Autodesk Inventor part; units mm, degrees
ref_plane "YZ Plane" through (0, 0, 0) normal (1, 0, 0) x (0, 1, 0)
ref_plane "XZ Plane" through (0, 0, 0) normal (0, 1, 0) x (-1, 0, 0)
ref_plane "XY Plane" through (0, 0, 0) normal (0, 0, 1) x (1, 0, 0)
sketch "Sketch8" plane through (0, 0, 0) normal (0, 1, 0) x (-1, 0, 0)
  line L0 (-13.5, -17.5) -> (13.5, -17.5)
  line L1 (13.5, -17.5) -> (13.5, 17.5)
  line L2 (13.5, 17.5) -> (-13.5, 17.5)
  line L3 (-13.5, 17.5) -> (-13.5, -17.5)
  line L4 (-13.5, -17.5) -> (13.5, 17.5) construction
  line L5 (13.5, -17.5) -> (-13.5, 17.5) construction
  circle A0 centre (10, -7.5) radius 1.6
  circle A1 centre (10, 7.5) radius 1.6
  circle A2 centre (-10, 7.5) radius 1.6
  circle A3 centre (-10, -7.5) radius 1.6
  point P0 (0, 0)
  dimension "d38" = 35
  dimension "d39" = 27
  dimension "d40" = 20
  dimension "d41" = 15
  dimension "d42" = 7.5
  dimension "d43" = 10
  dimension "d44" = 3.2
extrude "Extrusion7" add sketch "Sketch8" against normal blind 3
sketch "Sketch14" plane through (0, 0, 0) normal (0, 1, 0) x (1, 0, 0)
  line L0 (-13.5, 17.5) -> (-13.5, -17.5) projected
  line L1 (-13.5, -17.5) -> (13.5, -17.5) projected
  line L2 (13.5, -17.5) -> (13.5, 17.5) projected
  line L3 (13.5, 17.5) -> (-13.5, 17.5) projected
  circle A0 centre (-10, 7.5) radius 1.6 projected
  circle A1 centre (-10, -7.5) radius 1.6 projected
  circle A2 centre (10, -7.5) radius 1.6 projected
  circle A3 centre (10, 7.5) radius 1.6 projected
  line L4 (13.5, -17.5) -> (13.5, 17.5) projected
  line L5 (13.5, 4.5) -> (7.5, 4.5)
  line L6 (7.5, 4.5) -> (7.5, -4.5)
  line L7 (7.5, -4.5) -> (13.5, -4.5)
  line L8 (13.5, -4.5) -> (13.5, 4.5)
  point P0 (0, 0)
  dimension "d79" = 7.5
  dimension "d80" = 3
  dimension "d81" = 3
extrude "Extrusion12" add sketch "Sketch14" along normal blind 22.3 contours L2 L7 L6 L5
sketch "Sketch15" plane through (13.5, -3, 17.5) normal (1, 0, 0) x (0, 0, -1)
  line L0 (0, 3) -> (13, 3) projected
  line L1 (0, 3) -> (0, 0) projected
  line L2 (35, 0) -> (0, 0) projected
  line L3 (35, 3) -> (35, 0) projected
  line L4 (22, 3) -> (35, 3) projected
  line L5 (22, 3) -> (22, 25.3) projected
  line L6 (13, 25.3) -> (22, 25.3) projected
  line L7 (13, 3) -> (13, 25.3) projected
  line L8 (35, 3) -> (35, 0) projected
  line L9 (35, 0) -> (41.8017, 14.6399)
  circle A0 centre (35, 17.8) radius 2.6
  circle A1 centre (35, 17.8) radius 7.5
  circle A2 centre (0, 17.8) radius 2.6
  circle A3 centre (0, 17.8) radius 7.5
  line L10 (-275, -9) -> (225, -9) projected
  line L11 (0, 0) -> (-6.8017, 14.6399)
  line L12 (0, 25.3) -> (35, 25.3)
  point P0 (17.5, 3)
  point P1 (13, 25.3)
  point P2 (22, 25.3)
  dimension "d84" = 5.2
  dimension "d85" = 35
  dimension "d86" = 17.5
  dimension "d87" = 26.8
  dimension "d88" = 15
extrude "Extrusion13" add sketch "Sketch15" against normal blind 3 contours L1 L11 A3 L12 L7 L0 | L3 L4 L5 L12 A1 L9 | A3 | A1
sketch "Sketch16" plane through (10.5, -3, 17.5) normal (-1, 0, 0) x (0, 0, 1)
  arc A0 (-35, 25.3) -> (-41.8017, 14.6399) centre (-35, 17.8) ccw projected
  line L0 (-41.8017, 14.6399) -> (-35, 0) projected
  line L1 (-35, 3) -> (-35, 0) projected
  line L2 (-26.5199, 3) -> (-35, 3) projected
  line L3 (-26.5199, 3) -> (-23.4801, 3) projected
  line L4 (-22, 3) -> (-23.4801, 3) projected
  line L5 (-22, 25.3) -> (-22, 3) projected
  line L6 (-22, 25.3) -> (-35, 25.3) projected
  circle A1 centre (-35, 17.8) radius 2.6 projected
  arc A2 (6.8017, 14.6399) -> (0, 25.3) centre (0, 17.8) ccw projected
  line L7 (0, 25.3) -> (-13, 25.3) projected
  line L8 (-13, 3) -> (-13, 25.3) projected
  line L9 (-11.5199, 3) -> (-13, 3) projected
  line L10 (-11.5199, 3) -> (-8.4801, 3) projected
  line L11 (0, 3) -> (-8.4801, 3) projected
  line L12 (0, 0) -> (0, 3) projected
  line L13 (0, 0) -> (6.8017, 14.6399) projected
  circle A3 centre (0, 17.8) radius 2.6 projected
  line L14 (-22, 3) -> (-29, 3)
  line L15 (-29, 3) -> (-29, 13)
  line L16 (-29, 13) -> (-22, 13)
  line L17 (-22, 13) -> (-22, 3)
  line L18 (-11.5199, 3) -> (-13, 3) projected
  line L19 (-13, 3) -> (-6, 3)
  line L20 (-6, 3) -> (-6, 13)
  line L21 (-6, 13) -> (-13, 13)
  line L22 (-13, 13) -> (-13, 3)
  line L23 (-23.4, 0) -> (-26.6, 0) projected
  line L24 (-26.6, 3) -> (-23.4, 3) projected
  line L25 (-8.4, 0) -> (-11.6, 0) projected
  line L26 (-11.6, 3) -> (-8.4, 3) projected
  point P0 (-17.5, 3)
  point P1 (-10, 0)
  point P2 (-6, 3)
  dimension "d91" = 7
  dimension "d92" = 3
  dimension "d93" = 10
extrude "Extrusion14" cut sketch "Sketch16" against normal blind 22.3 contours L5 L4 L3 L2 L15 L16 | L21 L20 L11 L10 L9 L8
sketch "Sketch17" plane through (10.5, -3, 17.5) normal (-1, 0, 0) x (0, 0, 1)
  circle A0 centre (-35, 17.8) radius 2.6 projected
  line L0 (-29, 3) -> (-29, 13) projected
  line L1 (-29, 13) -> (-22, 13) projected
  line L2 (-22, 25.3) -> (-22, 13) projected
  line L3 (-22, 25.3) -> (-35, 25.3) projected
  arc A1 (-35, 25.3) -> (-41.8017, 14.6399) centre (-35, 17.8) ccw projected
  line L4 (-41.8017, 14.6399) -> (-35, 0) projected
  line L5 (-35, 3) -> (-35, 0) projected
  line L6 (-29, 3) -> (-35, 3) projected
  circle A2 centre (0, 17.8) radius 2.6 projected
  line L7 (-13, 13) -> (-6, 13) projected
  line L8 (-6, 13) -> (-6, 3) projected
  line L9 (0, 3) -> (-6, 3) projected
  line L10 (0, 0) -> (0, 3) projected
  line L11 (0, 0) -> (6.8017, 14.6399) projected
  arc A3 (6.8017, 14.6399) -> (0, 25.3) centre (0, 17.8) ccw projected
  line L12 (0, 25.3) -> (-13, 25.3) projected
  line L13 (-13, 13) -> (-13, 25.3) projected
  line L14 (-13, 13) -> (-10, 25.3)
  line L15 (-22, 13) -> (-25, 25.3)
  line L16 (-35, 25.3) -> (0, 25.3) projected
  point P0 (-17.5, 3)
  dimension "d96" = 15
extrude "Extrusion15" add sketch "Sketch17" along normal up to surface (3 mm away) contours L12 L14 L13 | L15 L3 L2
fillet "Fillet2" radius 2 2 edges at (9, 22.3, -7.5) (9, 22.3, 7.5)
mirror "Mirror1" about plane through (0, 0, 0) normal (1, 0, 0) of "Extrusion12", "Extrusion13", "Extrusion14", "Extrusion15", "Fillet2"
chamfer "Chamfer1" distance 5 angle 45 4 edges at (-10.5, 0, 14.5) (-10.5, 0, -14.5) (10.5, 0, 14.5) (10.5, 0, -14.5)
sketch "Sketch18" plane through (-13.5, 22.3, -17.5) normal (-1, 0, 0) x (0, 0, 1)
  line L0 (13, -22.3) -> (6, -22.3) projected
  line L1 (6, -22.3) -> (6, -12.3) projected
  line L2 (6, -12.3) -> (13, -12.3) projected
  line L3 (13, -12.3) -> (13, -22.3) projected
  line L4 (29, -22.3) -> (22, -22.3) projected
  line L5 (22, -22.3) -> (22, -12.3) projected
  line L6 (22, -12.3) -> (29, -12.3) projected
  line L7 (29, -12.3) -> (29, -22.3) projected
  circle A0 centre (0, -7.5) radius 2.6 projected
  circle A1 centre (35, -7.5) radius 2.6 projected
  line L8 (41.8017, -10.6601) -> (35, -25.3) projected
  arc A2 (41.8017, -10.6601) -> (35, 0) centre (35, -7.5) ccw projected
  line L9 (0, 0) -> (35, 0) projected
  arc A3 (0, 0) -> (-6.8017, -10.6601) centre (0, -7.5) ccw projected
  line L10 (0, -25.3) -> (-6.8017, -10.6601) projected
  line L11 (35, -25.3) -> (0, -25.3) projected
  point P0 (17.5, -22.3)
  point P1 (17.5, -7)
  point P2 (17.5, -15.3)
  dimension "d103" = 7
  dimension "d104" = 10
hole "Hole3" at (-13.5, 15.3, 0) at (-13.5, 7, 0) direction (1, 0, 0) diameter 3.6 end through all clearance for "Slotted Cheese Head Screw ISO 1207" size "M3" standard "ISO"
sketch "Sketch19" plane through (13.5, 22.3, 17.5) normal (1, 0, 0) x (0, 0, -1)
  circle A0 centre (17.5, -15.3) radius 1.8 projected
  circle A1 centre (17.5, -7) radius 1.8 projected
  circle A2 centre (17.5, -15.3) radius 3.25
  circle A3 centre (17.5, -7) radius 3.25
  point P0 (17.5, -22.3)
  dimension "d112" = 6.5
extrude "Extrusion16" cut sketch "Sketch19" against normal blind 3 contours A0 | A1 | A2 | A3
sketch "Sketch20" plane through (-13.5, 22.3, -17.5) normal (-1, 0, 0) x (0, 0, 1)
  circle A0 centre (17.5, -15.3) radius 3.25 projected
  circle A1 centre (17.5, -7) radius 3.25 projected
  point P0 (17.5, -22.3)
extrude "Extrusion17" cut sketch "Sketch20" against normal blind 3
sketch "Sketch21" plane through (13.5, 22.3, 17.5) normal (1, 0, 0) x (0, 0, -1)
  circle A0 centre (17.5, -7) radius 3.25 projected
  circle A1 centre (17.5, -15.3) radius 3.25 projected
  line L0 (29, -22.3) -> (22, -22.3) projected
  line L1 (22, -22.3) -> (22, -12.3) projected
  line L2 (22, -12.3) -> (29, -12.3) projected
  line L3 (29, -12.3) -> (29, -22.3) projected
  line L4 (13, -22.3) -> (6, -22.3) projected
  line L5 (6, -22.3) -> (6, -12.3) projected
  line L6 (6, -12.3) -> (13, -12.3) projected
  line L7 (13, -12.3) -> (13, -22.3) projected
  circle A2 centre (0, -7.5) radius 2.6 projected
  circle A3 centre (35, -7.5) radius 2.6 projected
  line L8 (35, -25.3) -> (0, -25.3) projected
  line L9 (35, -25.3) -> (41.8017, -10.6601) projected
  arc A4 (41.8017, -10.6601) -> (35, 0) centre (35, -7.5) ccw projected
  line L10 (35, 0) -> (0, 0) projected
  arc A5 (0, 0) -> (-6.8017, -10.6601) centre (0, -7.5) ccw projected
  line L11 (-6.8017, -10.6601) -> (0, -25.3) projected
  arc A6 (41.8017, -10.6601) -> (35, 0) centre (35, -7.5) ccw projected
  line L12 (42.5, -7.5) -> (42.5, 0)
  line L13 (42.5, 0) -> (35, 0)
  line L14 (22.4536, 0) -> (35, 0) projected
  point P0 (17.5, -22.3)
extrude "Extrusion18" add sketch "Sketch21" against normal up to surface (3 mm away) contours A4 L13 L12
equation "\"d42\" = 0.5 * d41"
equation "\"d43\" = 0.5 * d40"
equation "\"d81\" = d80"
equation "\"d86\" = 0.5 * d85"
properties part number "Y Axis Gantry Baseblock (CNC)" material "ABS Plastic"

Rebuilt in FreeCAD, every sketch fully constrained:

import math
import FreeCAD as App
import Part
import Sketcher


def edges_at(feature, points):
    """Names of the edges that pass closest to the given points."""
    edges = feature.Shape.Edges
    near = lambda p: min(range(len(edges)), key=lambda i: edges[i].distToShape(Part.Vertex(*p))[0])
    return sorted({f"Edge{near(p) + 1}" for p in points})


def add_polygon(sketch, points):
    """Adds a closed chain of lines whose ends are joined by coincident constraints."""
    first, n = sketch.GeometryCount, len(points)
    for a, b in zip(points, points[1:] + points[:1]):
        sketch.addGeometry(Part.LineSegment(App.Vector(*a, 0), App.Vector(*b, 0)), False)
    for i in range(n):
        sketch.addConstraint(Sketcher.Constraint("Coincident", first + i, 2, first + (i + 1) % n, 1))

doc = App.newDocument("Part")
body = doc.addObject("PartDesign::Body", "Body")

sketch1 = doc.addObject("Sketcher::SketchObject", "Sketch")
body.addObject(sketch1)
sketch1.AttachmentSupport = (doc.XZ_Plane, [""])
sketch1.MapMode = "FlatFace"
add_polygon(sketch1, [(13.5, 17.5), (13.5, -17.5), (-13.5, -17.5), (-13.5, 17.5)])
sketch1.addGeometry(Part.Circle(App.Vector(10, -7.5, 0), App.Vector(0, 0, 1), 1.6), False)
sketch1.addGeometry(Part.Circle(App.Vector(-10, -7.5, 0), App.Vector(0, 0, 1), 1.6), False)
sketch1.addGeometry(Part.Circle(App.Vector(10, 7.5, 0), App.Vector(0, 0, 1), 1.6), False)
sketch1.addGeometry(Part.Circle(App.Vector(-10, 7.5, 0), App.Vector(0, 0, 1), 1.6), False)
sketch1.addConstraint([
    Sketcher.Constraint("Vertical", 0),
    Sketcher.Constraint("Horizontal", 1),
    Sketcher.Constraint("Vertical", 2),
    Sketcher.Constraint("Horizontal", 3),
    Sketcher.Constraint("Equal", 4, 5),
    Sketcher.Constraint("Equal", 5, 6),
    Sketcher.Constraint("Equal", 6, 7),
    Sketcher.Constraint("Symmetric", 5, 3, 6, 3, -1, 1),
    Sketcher.Constraint("Symmetric", 4, 3, 7, 3, -1, 1),
    Sketcher.Constraint("Symmetric", 0, 2, 2, 2, -1, 1),
    Sketcher.Constraint("Symmetric", 4, 3, 5, 3, -2),
    Sketcher.Constraint("Diameter", 4, 3.2),
    Sketcher.Constraint("DistanceX", 1, 2, 1, 1, 27.0),
    Sketcher.Constraint("DistanceY", 0, 2, 0, 1, 35.0),
    Sketcher.Constraint("DistanceX", -1, 1, 4, 3, 10.0),
    Sketcher.Constraint("DistanceY", 4, 3, 6, 3, 15.0),
])
pad1 = doc.addObject("PartDesign::Pad", "Pad")
body.addObject(pad1)
pad1.Profile = sketch1
pad1.Length = 3

sketch2 = doc.addObject("Sketcher::SketchObject", "Sketch001")
body.addObject(sketch2)
sketch2.AttachmentSupport = (doc.XZ_Plane, [""])
sketch2.MapMode = "FlatFace"
add_polygon(sketch2, [(14, 4), (14, -4), (8, -4), (8, 4)])
sketch2.addConstraint([
    Sketcher.Constraint("Vertical", 0),
    Sketcher.Constraint("Horizontal", 1),
    Sketcher.Constraint("Vertical", 2),
    Sketcher.Constraint("Horizontal", 3),
    Sketcher.Constraint("DistanceX", -1, 1, 1, 2, 7.5),
    Sketcher.Constraint("DistanceX", 1, 2, 1, 1, 6.0),
    Sketcher.Constraint("DistanceY", 0, 2, 0, 1, 9.0),
    Sketcher.Constraint("DistanceY", 0, 2, -1, 1, 4.5),
])
pad2 = doc.addObject("PartDesign::Pad", "Pad001")
body.addObject(pad2)
pad2.Profile = sketch2
pad2.Length = 22.3
pad2.Reversed = True

sketch3 = doc.addObject("Sketcher::SketchObject", "Sketch002")
body.addObject(sketch3)
sketch3.AttachmentSupport = (doc.YZ_Plane, [""])
sketch3.MapMode = "FlatFace"
sketch3.AttachmentOffset = App.Placement(App.Vector(0, 0, 13.5), App.Rotation())
sketch3.addGeometry([
    Part.LineSegment(App.Vector(-3, 17.5, 0), App.Vector(0, 17.5, 0)),
    Part.LineSegment(App.Vector(0, 17.5, 0), App.Vector(0, 4.5, 0)),
    Part.LineSegment(App.Vector(0, 4.5, 0), App.Vector(22.3, 4.5, 0)),
    Part.LineSegment(App.Vector(22.3, 4.5, 0), App.Vector(22.3, 17.5, 0)),
    Part.ArcOfCircle(Part.Circle(App.Vector(14.8, 17.5, 0), App.Vector(0, 0, 1), 7.5), math.radians(0), math.radians(115)),
    Part.LineSegment(App.Vector(11.6, 24.3, 0), App.Vector(-3, 17.5, 0)),
    Part.Circle(App.Vector(14.8, 17.5, 0), App.Vector(0, 0, 1), 2.6),
    Part.LineSegment(App.Vector(0, -17.5, 0), App.Vector(-3, -17.5, 0)),
    Part.LineSegment(App.Vector(-3, -17.5, 0), App.Vector(11.6, -24.3, 0)),
    Part.ArcOfCircle(Part.Circle(App.Vector(14.8, -17.5, 0), App.Vector(0, 0, 1), 7.5), math.radians(-115), math.radians(0)),
    Part.LineSegment(App.Vector(22.3, -17.5, 0), App.Vector(22.3, -4.5, 0)),
    Part.LineSegment(App.Vector(22.3, -4.5, 0), App.Vector(0, -4.5, 0)),
    Part.LineSegment(App.Vector(0, -4.5, 0), App.Vector(0, -17.5, 0)),
    Part.Circle(App.Vector(14.8, -17.5, 0), App.Vector(0, 0, 1), 2.6),
], False)
sketch3.addConstraint([
    Sketcher.Constraint("Coincident", 0, 2, 1, 1),
    Sketcher.Constraint("Coincident", 1, 2, 2, 1),
    Sketcher.Constraint("Coincident", 2, 2, 3, 1),
    Sketcher.Constraint("Tangent", 3, 2, 4, 1),
    Sketcher.Constraint("Tangent", 4, 2, 5, 1),
    Sketcher.Constraint("Coincident", 5, 2, 0, 1),
    Sketcher.Constraint("Coincident", 7, 2, 8, 1),
    Sketcher.Constraint("Tangent", 8, 2, 9, 1),
    Sketcher.Constraint("Tangent", 9, 2, 10, 1),
    Sketcher.Constraint("Coincident", 10, 2, 11, 1),
    Sketcher.Constraint("Coincident", 11, 2, 12, 1),
    Sketcher.Constraint("Coincident", 12, 2, 7, 1),
    Sketcher.Constraint("Horizontal", 0),
    Sketcher.Constraint("Vertical", 1),
    Sketcher.Constraint("Horizontal", 2),
    Sketcher.Constraint("Vertical", 3),
    Sketcher.Constraint("Horizontal", 7),
    Sketcher.Constraint("Vertical", 10),
    Sketcher.Constraint("Horizontal", 11),
    Sketcher.Constraint("Vertical", 12),
    Sketcher.Constraint("Coincident", 6, 3, 4, 3),
    Sketcher.Constraint("Coincident", 13, 3, 9, 3),
    Sketcher.Constraint("Equal", 4, 9),
    Sketcher.Constraint("Equal", 6, 13),
    Sketcher.Constraint("Symmetric", 1, 2, 11, 2, -1, 1),
    Sketcher.Constraint("Symmetric", 4, 3, 9, 3, -1),
    Sketcher.Constraint("Symmetric", 5, 2, 7, 2, -1),
    Sketcher.Constraint("PointOnObject", 0, 2, -2),
    Sketcher.Constraint("Horizontal", 6, 3, 0, 2),
    Sketcher.Constraint("Diameter", 6, 5.2),
    Sketcher.Constraint("Radius", 4, 7.5),
    Sketcher.Constraint("DistanceY", 9, 3, 4, 3, 35.0),
    Sketcher.Constraint("DistanceX", 0, 1, 0, 2, 3.0),
    Sketcher.Constraint("DistanceY", 1, 2, 1, 1, 13.0),
    Sketcher.Constraint("DistanceX", 2, 1, 2, 2, 22.3),
])
pad3 = doc.addObject("PartDesign::Pad", "Pad002")
body.addObject(pad3)
pad3.Profile = sketch3
pad3.Length = 3
pad3.Reversed = True

sketch4 = doc.addObject("Sketcher::SketchObject", "Sketch003")
body.addObject(sketch4)
sketch4.AttachmentSupport = (doc.YZ_Plane, [""])
sketch4.MapMode = "FlatFace"
sketch4.AttachmentOffset = App.Placement(App.Vector(0, 0, 10.5), App.Rotation())
add_polygon(sketch4, [(0, -4), (10, -4), (10, -12), (0, -12)])
add_polygon(sketch4, [(10, 12), (10, 4), (0, 4), (0, 12)])
sketch4.addConstraint([
    Sketcher.Constraint("Horizontal", 0),
    Sketcher.Constraint("Vertical", 1),
    Sketcher.Constraint("Horizontal", 2),
    Sketcher.Constraint("Vertical", 3),
    Sketcher.Constraint("Vertical", 4),
    Sketcher.Constraint("Horizontal", 5),
    Sketcher.Constraint("Vertical", 6),
    Sketcher.Constraint("Horizontal", 7),
    Sketcher.Constraint("Symmetric", 3, 2, 5, 2, -1, 1),
    Sketcher.Constraint("Symmetric", 2, 2, 6, 2, -1),
    Sketcher.Constraint("Vertical", 1, 2, 4, 2),
    Sketcher.Constraint("DistanceX", 0, 1, 0, 2, 10.0),
    Sketcher.Constraint("DistanceY", 1, 2, 1, 1, 7.0),
    Sketcher.Constraint("DistanceY", 0, 2, 4, 2, 9.0),
])
pocket1 = doc.addObject("PartDesign::Pocket", "Pocket")
body.addObject(pocket1)
pocket1.Profile = sketch4
pocket1.Length = 22.3
pocket1.Reversed = True

sketch5 = doc.addObject("Sketcher::SketchObject", "Sketch004")
body.addObject(sketch5)
sketch5.AttachmentSupport = (doc.YZ_Plane, [""])
sketch5.MapMode = "FlatFace"
sketch5.AttachmentOffset = App.Placement(App.Vector(0, 0, 10.5), App.Rotation())
add_polygon(sketch5, [(22.3, 7.5), (22.3, 4.5), (10, 4.5)])
add_polygon(sketch5, [(22.3, -7.5), (10, -4.5), (22.3, -4.5)])
sketch5.addConstraint([
    Sketcher.Constraint("Vertical", 0),
    Sketcher.Constraint("Horizontal", 1),
    Sketcher.Constraint("Horizontal", 4),
    Sketcher.Constraint("Vertical", 5),
    Sketcher.Constraint("Symmetric", 1, 2, 3, 2, -1),
    Sketcher.Constraint("Symmetric", 2, 2, 5, 2, -1),
    Sketcher.Constraint("DistanceY", 5, 2, 2, 2, 15.0),
    Sketcher.Constraint("DistanceY", 0, 2, 0, 1, 3.0),
    Sketcher.Constraint("DistanceX", 1, 2, 1, 1, 12.3),
    Sketcher.Constraint("DistanceX", -1, 1, 1, 2, 10.0),
])
pad4 = doc.addObject("PartDesign::Pad", "Pad003")
body.addObject(pad4)
pad4.Profile = sketch5
pad4.Length = 3
pad4.Reversed = True
doc.recompute()

fillet = doc.addObject("PartDesign::Fillet", "Fillet")
body.addObject(fillet)
fillet.Base = (pad4, edges_at(pad4, [(9, 22.3, -7.5), (9, 22.3, 7.5)]))
fillet.Radius = 2
doc.recompute()

mirrored = doc.addObject("PartDesign::Mirrored", "Mirrored")
body.addObject(mirrored)
mirrored.Originals = [pad2, pad3, pocket1, pad4, fillet]
mirrored.MirrorPlane = (doc.YZ_Plane, [""])
body.Tip = mirrored
doc.recompute()

chamfer = doc.addObject("PartDesign::Chamfer", "Chamfer")
body.addObject(chamfer)
chamfer.Base = (mirrored, edges_at(mirrored, [
    (-10.5, 0, 14.5),
    (-10.5, 0, -14.5),
    (10.5, 0, 14.5),
    (10.5, 0, -14.5),
]))
chamfer.Size = 5

sketch6 = doc.addObject("Sketcher::SketchObject", "Sketch005")
body.addObject(sketch6)
sketch6.AttachmentSupport = (doc.YZ_Plane, [""])
sketch6.MapMode = "FlatFace"
sketch6.AttachmentOffset = App.Placement(App.Vector(0, 0, -13.5), App.Rotation())
sketch6.addGeometry([
    Part.Circle(App.Vector(15.3, 0, 0), App.Vector(0, 0, 1), 1.8),
    Part.Circle(App.Vector(7, 0, 0), App.Vector(0, 0, 1), 1.8),
], False)
sketch6.addConstraint([
    Sketcher.Constraint("Equal", 0, 1),
    Sketcher.Constraint("PointOnObject", 0, 3, -1),
    Sketcher.Constraint("PointOnObject", 1, 3, -1),
    Sketcher.Constraint("Diameter", 0, 3.6),
    Sketcher.Constraint("DistanceX", -1, 1, 1, 3, 7.0),
    Sketcher.Constraint("DistanceX", -1, 1, 0, 3, 15.3),
])
doc.recompute()
hole = doc.addObject("PartDesign::Hole", "Hole")
body.addObject(hole)
hole.Profile = sketch6
hole.ThreadType = "None"
hole.Diameter = 3.6
hole.DepthType = "ThroughAll"
hole.Reversed = True

sketch7 = doc.addObject("Sketcher::SketchObject", "Sketch006")
body.addObject(sketch7)
sketch7.AttachmentSupport = (doc.YZ_Plane, [""])
sketch7.MapMode = "FlatFace"
sketch7.AttachmentOffset = App.Placement(App.Vector(0, 0, 13.5), App.Rotation())
sketch7.addGeometry([
    Part.Circle(App.Vector(7, 0, 0), App.Vector(0, 0, 1), 3.2),
    Part.Circle(App.Vector(15.3, 0, 0), App.Vector(0, 0, 1), 3.2),
], False)
sketch7.addConstraint([
    Sketcher.Constraint("Equal", 0, 1),
    Sketcher.Constraint("PointOnObject", 0, 3, -1),
    Sketcher.Constraint("PointOnObject", 1, 3, -1),
    Sketcher.Constraint("Diameter", 0, 6.5),
    Sketcher.Constraint("DistanceX", -1, 1, 0, 3, 7.0),
    Sketcher.Constraint("DistanceX", -1, 1, 1, 3, 15.3),
])
pocket2 = doc.addObject("PartDesign::Pocket", "Pocket001")
body.addObject(pocket2)
pocket2.Profile = sketch7
pocket2.Length = 3

sketch8 = doc.addObject("Sketcher::SketchObject", "Sketch007")
body.addObject(sketch8)
sketch8.AttachmentSupport = (doc.YZ_Plane, [""])
sketch8.MapMode = "FlatFace"
sketch8.AttachmentOffset = App.Placement(App.Vector(0, 0, -13.5), App.Rotation())
sketch8.addGeometry([
    Part.Circle(App.Vector(7, 0, 0), App.Vector(0, 0, 1), 3.2),
    Part.Circle(App.Vector(15.3, 0, 0), App.Vector(0, 0, 1), 3.2),
], False)
sketch8.addConstraint([
    Sketcher.Constraint("Equal", 0, 1),
    Sketcher.Constraint("PointOnObject", 0, 3, -1),
    Sketcher.Constraint("PointOnObject", 1, 3, -1),
    Sketcher.Constraint("Diameter", 0, 6.5),
    Sketcher.Constraint("DistanceX", -1, 1, 0, 3, 7.0),
    Sketcher.Constraint("DistanceX", -1, 1, 1, 3, 15.3),
])
pocket3 = doc.addObject("PartDesign::Pocket", "Pocket002")
body.addObject(pocket3)
pocket3.Profile = sketch8
pocket3.Length = 3
pocket3.Reversed = True

sketch9 = doc.addObject("Sketcher::SketchObject", "Sketch008")
body.addObject(sketch9)
sketch9.AttachmentSupport = (doc.YZ_Plane, [""])
sketch9.MapMode = "FlatFace"
sketch9.AttachmentOffset = App.Placement(App.Vector(0, 0, 13.5), App.Rotation())
sketch9.addGeometry([
    Part.ArcOfCircle(Part.Circle(App.Vector(15, -18, 0), App.Vector(0, 0, 1), 7), math.radians(-90), math.radians(0)),
    Part.LineSegment(App.Vector(15, -25, 0), App.Vector(22, -25, 0)),
    Part.LineSegment(App.Vector(22, -25, 0), App.Vector(22, -18, 0)),
], False)
sketch9.addConstraint([
    Sketcher.Constraint("Tangent", 0, 1, 1, 1),
    Sketcher.Constraint("Coincident", 1, 2, 2, 1),
    Sketcher.Constraint("Tangent", 2, 2, 0, 2),
    Sketcher.Constraint("Horizontal", 1),
    Sketcher.Constraint("Vertical", 2),
    Sketcher.Constraint("Radius", 0, 7.5),
    Sketcher.Constraint("DistanceY", 0, 1, -1, 1, 25.0),
    Sketcher.Constraint("DistanceX", -1, 1, 0, 3, 14.8),
])
pad5 = doc.addObject("PartDesign::Pad", "Pad004")
body.addObject(pad5)
pad5.Profile = sketch9
pad5.Length = 3
pad5.Reversed = True

doc.recompute()
